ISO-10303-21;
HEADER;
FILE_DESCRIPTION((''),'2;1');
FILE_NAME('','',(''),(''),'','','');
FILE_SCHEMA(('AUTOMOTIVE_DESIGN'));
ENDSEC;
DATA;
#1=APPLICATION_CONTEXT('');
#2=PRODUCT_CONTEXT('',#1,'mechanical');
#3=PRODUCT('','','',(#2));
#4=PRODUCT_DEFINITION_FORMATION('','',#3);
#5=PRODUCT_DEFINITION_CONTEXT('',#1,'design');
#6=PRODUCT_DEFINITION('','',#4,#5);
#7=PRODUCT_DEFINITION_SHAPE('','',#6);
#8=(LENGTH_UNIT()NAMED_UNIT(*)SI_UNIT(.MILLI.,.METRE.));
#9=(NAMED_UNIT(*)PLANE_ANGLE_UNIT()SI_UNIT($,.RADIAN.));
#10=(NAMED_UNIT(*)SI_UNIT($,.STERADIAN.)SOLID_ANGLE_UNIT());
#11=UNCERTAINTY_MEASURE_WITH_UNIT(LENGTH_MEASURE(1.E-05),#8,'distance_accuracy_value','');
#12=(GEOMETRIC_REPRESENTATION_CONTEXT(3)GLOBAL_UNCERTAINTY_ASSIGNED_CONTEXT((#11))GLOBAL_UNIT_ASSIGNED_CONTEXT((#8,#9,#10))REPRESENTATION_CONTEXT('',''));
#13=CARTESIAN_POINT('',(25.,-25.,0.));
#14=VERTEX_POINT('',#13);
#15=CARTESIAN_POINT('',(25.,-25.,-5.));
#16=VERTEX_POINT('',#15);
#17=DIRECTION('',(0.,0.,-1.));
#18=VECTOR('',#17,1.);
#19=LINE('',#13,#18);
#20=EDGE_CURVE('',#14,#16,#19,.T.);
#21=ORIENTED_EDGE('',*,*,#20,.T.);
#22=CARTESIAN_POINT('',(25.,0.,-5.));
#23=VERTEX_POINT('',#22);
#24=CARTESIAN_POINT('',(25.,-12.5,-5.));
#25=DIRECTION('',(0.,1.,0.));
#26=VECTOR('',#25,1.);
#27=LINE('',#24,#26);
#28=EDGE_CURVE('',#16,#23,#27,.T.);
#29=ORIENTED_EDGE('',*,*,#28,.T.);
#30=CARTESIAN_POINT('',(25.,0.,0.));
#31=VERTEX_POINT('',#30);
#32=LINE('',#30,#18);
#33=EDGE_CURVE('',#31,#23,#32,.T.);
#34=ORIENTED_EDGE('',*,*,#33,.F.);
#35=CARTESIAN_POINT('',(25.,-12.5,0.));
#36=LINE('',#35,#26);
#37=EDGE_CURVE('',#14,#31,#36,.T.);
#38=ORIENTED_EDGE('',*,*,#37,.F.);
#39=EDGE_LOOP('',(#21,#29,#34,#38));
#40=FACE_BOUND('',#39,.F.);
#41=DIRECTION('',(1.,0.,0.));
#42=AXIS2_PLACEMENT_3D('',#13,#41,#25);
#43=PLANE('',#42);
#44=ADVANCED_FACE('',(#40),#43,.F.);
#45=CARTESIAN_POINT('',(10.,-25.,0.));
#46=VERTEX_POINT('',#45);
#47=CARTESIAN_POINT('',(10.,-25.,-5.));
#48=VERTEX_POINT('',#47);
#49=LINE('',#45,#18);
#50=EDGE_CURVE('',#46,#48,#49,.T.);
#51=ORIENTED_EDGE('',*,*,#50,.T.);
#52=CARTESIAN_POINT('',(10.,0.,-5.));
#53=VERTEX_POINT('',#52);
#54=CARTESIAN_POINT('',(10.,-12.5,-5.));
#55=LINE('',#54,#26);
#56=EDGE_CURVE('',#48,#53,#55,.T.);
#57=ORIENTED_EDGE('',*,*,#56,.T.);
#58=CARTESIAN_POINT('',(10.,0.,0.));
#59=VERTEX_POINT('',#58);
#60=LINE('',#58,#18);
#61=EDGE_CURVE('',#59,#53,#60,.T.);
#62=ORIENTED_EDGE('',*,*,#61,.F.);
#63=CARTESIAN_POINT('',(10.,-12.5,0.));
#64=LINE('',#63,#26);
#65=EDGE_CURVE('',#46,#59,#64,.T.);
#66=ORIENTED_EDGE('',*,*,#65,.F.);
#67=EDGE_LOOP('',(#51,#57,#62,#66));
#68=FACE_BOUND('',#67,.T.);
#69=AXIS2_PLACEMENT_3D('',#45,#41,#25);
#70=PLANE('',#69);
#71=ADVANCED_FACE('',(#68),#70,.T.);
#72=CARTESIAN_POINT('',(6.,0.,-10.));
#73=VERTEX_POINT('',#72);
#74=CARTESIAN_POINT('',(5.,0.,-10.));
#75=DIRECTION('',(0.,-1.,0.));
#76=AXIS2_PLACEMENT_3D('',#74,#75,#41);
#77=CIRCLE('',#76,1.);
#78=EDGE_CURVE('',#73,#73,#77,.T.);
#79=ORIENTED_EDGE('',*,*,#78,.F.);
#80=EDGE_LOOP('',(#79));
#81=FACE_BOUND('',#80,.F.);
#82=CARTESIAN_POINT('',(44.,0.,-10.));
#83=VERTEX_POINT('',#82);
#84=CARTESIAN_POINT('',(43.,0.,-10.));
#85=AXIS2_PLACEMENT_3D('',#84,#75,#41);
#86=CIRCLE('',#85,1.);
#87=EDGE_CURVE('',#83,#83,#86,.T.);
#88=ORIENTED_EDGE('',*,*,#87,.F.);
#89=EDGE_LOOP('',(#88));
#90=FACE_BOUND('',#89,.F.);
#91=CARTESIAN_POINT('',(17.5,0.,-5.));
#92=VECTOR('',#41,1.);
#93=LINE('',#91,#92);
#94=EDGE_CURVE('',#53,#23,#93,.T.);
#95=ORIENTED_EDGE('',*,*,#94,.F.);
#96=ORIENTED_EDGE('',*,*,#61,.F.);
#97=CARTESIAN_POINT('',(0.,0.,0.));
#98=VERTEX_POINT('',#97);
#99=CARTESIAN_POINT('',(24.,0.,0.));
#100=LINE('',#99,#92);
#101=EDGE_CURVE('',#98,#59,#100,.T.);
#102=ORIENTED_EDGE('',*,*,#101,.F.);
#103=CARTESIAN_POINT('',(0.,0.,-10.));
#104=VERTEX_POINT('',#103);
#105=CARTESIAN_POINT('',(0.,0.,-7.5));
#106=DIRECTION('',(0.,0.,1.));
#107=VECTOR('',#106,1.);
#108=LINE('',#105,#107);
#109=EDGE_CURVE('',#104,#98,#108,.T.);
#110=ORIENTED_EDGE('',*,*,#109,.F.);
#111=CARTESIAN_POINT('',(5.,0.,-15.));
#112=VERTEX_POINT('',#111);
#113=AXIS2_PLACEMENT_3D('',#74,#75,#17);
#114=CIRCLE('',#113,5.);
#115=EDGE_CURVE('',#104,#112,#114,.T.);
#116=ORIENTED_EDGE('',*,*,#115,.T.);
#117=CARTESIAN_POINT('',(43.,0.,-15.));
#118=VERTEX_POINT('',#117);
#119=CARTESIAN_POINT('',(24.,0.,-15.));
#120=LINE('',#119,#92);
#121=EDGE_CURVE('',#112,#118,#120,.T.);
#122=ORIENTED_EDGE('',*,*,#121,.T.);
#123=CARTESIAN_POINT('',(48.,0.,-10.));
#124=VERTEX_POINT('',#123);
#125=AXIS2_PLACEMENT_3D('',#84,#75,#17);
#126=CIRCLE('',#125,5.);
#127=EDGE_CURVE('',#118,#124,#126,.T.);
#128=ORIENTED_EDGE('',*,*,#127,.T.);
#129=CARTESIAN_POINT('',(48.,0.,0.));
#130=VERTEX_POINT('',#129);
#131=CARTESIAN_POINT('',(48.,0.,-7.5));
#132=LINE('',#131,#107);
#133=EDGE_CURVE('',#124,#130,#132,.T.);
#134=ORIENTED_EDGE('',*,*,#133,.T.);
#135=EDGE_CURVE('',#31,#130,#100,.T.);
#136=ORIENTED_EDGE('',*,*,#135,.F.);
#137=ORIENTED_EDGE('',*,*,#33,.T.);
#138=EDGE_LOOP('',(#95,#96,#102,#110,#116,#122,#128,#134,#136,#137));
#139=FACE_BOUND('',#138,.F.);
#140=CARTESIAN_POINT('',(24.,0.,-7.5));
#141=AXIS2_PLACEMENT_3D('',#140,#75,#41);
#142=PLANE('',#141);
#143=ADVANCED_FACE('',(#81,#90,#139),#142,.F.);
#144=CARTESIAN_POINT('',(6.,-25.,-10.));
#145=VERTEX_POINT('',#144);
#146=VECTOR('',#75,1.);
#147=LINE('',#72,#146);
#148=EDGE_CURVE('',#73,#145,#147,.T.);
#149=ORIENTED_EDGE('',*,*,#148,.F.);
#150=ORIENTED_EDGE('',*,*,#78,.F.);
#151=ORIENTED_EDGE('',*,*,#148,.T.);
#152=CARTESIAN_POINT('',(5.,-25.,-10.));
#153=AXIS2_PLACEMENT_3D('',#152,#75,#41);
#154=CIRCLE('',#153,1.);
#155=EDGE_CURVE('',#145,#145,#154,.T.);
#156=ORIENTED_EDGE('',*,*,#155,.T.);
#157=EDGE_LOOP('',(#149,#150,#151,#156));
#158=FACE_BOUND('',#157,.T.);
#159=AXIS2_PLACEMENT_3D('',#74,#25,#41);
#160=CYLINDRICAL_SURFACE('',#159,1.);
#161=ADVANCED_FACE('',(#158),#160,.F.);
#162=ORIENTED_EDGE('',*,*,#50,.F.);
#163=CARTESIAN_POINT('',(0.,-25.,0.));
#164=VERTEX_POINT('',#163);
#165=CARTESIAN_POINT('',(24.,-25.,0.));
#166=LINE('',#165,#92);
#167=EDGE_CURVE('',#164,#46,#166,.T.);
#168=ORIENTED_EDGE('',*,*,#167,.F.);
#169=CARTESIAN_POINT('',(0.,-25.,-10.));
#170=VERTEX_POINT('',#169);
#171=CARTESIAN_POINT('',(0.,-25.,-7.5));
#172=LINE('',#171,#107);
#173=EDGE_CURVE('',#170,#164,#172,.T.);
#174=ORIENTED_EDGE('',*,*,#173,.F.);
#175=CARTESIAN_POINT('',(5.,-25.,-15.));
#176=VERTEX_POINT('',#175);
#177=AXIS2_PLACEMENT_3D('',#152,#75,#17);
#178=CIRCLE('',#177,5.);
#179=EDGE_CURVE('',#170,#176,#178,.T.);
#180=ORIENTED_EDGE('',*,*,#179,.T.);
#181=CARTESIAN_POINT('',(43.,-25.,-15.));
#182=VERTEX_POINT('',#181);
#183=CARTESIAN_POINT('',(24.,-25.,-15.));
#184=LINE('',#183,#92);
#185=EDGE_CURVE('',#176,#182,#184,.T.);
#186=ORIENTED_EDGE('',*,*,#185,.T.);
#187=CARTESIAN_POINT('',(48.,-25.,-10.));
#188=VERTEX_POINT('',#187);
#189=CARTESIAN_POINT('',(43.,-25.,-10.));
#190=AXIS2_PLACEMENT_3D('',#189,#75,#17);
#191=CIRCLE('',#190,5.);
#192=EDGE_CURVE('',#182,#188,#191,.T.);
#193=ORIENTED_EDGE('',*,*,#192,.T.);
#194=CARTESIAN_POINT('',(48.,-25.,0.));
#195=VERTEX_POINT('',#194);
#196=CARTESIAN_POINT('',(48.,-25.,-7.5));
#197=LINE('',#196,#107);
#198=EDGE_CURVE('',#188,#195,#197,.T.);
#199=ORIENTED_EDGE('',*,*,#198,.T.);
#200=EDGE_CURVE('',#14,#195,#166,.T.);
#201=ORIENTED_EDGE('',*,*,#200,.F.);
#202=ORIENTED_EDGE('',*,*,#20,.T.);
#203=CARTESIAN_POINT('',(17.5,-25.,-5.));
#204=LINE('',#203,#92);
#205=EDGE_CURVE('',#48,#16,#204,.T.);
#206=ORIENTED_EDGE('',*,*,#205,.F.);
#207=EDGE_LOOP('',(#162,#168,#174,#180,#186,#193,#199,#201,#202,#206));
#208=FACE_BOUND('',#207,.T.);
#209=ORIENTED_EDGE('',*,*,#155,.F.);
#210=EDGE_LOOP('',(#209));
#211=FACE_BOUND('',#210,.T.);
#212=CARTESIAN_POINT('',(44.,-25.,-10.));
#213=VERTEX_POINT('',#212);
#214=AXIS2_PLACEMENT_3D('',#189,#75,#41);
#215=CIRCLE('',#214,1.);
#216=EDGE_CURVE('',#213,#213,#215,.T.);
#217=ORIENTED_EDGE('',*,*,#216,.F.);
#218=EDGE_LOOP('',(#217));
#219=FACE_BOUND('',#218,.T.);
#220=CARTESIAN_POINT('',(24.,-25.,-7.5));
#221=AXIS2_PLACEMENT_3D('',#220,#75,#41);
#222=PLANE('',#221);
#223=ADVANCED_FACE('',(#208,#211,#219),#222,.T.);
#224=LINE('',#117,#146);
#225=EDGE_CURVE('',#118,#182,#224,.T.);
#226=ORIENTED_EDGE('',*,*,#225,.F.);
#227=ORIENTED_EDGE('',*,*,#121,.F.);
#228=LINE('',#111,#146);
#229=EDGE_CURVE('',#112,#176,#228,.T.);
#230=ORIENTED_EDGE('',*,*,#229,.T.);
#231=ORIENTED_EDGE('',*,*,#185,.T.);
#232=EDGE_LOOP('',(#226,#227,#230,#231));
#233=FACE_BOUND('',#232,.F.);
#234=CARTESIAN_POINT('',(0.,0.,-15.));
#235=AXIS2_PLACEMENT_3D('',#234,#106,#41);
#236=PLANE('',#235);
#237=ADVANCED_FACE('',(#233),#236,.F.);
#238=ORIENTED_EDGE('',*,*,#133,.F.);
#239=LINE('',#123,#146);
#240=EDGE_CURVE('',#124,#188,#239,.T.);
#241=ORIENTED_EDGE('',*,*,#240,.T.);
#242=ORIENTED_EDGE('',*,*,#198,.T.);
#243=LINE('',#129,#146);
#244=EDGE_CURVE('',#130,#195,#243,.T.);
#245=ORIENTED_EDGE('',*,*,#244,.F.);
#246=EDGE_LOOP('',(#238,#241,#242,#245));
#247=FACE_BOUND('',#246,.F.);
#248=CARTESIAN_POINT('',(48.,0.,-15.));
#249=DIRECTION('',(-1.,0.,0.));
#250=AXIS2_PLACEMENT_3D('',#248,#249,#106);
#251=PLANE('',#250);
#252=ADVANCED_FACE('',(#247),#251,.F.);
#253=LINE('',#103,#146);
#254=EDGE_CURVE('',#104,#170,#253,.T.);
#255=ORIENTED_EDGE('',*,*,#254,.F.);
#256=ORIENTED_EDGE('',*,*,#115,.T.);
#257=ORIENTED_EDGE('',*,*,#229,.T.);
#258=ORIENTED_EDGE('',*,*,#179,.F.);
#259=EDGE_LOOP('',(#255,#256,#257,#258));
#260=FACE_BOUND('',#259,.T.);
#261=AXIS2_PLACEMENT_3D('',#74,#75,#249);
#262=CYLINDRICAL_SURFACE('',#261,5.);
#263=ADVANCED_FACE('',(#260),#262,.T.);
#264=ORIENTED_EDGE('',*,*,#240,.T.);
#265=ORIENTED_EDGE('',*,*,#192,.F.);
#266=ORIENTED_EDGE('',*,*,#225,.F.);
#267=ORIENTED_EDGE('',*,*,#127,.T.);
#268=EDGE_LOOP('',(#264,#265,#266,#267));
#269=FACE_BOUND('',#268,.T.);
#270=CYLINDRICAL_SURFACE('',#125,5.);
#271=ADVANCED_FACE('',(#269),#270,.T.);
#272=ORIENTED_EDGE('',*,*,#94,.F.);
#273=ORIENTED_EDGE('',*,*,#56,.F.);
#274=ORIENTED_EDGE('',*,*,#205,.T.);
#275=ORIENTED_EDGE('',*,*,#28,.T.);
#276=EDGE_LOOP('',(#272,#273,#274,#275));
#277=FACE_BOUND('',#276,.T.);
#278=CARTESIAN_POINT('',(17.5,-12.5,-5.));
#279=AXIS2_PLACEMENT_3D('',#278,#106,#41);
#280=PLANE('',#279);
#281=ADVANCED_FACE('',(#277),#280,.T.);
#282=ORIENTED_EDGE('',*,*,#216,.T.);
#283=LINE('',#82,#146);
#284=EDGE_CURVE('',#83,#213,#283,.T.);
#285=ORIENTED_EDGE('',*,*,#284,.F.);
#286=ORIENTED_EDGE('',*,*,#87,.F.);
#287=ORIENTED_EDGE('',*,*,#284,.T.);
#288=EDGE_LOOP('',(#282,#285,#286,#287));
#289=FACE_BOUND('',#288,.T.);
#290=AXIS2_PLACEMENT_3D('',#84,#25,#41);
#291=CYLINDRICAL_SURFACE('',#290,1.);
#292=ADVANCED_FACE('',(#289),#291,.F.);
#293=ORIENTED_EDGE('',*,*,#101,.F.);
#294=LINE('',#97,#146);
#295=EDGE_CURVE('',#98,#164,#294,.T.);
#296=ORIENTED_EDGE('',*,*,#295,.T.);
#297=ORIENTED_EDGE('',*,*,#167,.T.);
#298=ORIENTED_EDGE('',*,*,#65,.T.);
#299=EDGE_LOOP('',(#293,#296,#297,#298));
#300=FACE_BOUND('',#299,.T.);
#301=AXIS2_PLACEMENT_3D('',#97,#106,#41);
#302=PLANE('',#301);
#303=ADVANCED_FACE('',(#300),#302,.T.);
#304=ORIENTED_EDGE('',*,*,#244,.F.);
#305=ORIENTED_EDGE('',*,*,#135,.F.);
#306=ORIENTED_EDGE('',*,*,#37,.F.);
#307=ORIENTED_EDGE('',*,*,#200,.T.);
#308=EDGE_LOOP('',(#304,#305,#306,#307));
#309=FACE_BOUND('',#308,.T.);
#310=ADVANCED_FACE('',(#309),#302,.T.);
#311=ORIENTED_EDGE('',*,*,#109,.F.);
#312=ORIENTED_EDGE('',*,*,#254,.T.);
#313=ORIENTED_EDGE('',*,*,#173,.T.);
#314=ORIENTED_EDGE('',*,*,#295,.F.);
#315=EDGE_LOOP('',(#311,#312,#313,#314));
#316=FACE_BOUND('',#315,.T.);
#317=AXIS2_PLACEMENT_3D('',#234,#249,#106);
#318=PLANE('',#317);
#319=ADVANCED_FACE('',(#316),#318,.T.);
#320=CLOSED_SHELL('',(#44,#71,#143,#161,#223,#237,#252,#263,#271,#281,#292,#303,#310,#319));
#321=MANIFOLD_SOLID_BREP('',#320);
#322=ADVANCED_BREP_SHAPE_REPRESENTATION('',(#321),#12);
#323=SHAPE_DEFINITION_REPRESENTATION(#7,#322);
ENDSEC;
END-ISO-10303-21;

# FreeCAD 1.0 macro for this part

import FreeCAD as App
import Part
import Sketcher
from FreeCAD import Vector


def edges_at(feature, points):
    """Names of the edges that pass closest to the given points."""
    edges = feature.Shape.Edges
    near = lambda p: min(range(len(edges)), key=lambda i: edges[i].distToShape(Part.Vertex(*p))[0])
    return sorted({f"Edge{near(p) + 1}" for p in points})

doc = App.newDocument("Part")
params = doc.addObject("Spreadsheet::Sheet", "Params")
for row, (alias, value) in enumerate([
    ("sketch1_diameter", "2 mm"),
    ("sketch1_width", "48 mm"),
    ("sketch1_height", "15 mm"),
    ("pad1_length", "25 mm"),
    ("fillet_radius", "5 mm"),
    ("sketch2_width", "15 mm"),
    ("sketch2_height", "25 mm"),
    ("pocket1_length", "5 mm"),
], start=1):
    params.set(f"A{row}", alias)
    params.set(f"B{row}", "=" + value)
    params.setAlias(f"B{row}", alias)

body = doc.addObject("PartDesign::Body", "Body")

sketch1 = doc.addObject("Sketcher::SketchObject", "Sketch")
body.addObject(sketch1)
sketch1.AttachmentSupport = (doc.XZ_Plane, [""])
sketch1.MapMode = "FlatFace"
sketch1.addGeometry(Part.LineSegment(Vector(0, 0, 0), Vector(0, -15, 0)), False)
sketch1.addGeometry(Part.LineSegment(Vector(0, -15, 0), Vector(48, -15, 0)), False)
sketch1.addGeometry(Part.LineSegment(Vector(48, -15, 0), Vector(48, 0, 0)), False)
sketch1.addGeometry(Part.LineSegment(Vector(48, 0, 0), Vector(0, 0, 0)), False)
sketch1.addGeometry(Part.Circle(Vector(5, -10, 0), Vector(0, 0, 1), 1), False)
sketch1.addGeometry(Part.Circle(Vector(43, -10, 0), Vector(0, 0, 1), 1), False)
sketch1.addConstraint(Sketcher.Constraint("Coincident", 0, 2, 1, 1))
sketch1.addConstraint(Sketcher.Constraint("Coincident", 1, 2, 2, 1))
sketch1.addConstraint(Sketcher.Constraint("Coincident", 2, 2, 3, 1))
sketch1.addConstraint(Sketcher.Constraint("Coincident", 3, 2, 0, 1))
sketch1.addConstraint(Sketcher.Constraint("Vertical", 0))
sketch1.addConstraint(Sketcher.Constraint("Horizontal", 1))
sketch1.addConstraint(Sketcher.Constraint("Vertical", 2))
sketch1.addConstraint(Sketcher.Constraint("Horizontal", 3))
sketch1.addConstraint(Sketcher.Constraint("Coincident", 3, 2, -1, 1))
sketch1.addConstraint(Sketcher.Constraint("Equal", 4, 5))
sketch1.addConstraint(Sketcher.Constraint("Horizontal", 4, 3, 5, 3))
sketch1.addConstraint(Sketcher.Constraint("Diameter", 4, 2.0))
sketch1.addConstraint(Sketcher.Constraint("DistanceX", 1, 1, 1, 2, 48.0))
sketch1.addConstraint(Sketcher.Constraint("DistanceY", 0, 2, 0, 1, 15.0))
sketch1.addConstraint(Sketcher.Constraint("DistanceX", -1, 1, 4, 3, 5.0))
sketch1.addConstraint(Sketcher.Constraint("DistanceY", 4, 3, -1, 1, 10.0))
sketch1.addConstraint(Sketcher.Constraint("DistanceX", -1, 1, 5, 3, 43.0))
sketch1.setExpression("Constraints[11]", "Params.sketch1_diameter")
sketch1.setExpression("Constraints[12]", "Params.sketch1_width")
sketch1.setExpression("Constraints[13]", "Params.sketch1_height")
pad1 = doc.addObject("PartDesign::Pad", "Pad")
body.addObject(pad1)
pad1.Profile = sketch1
pad1.setExpression("Length", "Params.pad1_length")
doc.recompute()

fillet = doc.addObject("PartDesign::Fillet", "Fillet")
body.addObject(fillet)
fillet.Base = (pad1, edges_at(pad1, [(0, -12.5, -15), (48, -12.5, -15)]))
fillet.setExpression("Radius", "Params.fillet_radius")

sketch2 = doc.addObject("Sketcher::SketchObject", "Sketch001")
body.addObject(sketch2)
sketch2.AttachmentSupport = (doc.XY_Plane, [""])
sketch2.MapMode = "FlatFace"
sketch2.addGeometry(Part.LineSegment(Vector(10, 0, 0), Vector(10, -25, 0)), False)
sketch2.addGeometry(Part.LineSegment(Vector(10, -25, 0), Vector(25, -25, 0)), False)
sketch2.addGeometry(Part.LineSegment(Vector(25, -25, 0), Vector(25, 0, 0)), False)
sketch2.addGeometry(Part.LineSegment(Vector(25, 0, 0), Vector(10, 0, 0)), False)
sketch2.addConstraint(Sketcher.Constraint("Coincident", 0, 2, 1, 1))
sketch2.addConstraint(Sketcher.Constraint("Coincident", 1, 2, 2, 1))
sketch2.addConstraint(Sketcher.Constraint("Coincident", 2, 2, 3, 1))
sketch2.addConstraint(Sketcher.Constraint("Coincident", 3, 2, 0, 1))
sketch2.addConstraint(Sketcher.Constraint("Vertical", 0))
sketch2.addConstraint(Sketcher.Constraint("Horizontal", 1))
sketch2.addConstraint(Sketcher.Constraint("Vertical", 2))
sketch2.addConstraint(Sketcher.Constraint("Horizontal", 3))
sketch2.addConstraint(Sketcher.Constraint("PointOnObject", 2, 2, -1))
sketch2.addConstraint(Sketcher.Constraint("DistanceX", 1, 1, 1, 2, 15.0))
sketch2.addConstraint(Sketcher.Constraint("DistanceY", 0, 2, 0, 1, 25.0))
sketch2.addConstraint(Sketcher.Constraint("DistanceX", -1, 1, 0, 2, 10.0))
sketch2.setExpression("Constraints[9]", "Params.sketch2_width")
sketch2.setExpression("Constraints[10]", "Params.sketch2_height")
pocket1 = doc.addObject("PartDesign::Pocket", "Pocket")
body.addObject(pocket1)
pocket1.Profile = sketch2
pocket1.setExpression("Length", "Params.pocket1_length")

doc.recompute()
